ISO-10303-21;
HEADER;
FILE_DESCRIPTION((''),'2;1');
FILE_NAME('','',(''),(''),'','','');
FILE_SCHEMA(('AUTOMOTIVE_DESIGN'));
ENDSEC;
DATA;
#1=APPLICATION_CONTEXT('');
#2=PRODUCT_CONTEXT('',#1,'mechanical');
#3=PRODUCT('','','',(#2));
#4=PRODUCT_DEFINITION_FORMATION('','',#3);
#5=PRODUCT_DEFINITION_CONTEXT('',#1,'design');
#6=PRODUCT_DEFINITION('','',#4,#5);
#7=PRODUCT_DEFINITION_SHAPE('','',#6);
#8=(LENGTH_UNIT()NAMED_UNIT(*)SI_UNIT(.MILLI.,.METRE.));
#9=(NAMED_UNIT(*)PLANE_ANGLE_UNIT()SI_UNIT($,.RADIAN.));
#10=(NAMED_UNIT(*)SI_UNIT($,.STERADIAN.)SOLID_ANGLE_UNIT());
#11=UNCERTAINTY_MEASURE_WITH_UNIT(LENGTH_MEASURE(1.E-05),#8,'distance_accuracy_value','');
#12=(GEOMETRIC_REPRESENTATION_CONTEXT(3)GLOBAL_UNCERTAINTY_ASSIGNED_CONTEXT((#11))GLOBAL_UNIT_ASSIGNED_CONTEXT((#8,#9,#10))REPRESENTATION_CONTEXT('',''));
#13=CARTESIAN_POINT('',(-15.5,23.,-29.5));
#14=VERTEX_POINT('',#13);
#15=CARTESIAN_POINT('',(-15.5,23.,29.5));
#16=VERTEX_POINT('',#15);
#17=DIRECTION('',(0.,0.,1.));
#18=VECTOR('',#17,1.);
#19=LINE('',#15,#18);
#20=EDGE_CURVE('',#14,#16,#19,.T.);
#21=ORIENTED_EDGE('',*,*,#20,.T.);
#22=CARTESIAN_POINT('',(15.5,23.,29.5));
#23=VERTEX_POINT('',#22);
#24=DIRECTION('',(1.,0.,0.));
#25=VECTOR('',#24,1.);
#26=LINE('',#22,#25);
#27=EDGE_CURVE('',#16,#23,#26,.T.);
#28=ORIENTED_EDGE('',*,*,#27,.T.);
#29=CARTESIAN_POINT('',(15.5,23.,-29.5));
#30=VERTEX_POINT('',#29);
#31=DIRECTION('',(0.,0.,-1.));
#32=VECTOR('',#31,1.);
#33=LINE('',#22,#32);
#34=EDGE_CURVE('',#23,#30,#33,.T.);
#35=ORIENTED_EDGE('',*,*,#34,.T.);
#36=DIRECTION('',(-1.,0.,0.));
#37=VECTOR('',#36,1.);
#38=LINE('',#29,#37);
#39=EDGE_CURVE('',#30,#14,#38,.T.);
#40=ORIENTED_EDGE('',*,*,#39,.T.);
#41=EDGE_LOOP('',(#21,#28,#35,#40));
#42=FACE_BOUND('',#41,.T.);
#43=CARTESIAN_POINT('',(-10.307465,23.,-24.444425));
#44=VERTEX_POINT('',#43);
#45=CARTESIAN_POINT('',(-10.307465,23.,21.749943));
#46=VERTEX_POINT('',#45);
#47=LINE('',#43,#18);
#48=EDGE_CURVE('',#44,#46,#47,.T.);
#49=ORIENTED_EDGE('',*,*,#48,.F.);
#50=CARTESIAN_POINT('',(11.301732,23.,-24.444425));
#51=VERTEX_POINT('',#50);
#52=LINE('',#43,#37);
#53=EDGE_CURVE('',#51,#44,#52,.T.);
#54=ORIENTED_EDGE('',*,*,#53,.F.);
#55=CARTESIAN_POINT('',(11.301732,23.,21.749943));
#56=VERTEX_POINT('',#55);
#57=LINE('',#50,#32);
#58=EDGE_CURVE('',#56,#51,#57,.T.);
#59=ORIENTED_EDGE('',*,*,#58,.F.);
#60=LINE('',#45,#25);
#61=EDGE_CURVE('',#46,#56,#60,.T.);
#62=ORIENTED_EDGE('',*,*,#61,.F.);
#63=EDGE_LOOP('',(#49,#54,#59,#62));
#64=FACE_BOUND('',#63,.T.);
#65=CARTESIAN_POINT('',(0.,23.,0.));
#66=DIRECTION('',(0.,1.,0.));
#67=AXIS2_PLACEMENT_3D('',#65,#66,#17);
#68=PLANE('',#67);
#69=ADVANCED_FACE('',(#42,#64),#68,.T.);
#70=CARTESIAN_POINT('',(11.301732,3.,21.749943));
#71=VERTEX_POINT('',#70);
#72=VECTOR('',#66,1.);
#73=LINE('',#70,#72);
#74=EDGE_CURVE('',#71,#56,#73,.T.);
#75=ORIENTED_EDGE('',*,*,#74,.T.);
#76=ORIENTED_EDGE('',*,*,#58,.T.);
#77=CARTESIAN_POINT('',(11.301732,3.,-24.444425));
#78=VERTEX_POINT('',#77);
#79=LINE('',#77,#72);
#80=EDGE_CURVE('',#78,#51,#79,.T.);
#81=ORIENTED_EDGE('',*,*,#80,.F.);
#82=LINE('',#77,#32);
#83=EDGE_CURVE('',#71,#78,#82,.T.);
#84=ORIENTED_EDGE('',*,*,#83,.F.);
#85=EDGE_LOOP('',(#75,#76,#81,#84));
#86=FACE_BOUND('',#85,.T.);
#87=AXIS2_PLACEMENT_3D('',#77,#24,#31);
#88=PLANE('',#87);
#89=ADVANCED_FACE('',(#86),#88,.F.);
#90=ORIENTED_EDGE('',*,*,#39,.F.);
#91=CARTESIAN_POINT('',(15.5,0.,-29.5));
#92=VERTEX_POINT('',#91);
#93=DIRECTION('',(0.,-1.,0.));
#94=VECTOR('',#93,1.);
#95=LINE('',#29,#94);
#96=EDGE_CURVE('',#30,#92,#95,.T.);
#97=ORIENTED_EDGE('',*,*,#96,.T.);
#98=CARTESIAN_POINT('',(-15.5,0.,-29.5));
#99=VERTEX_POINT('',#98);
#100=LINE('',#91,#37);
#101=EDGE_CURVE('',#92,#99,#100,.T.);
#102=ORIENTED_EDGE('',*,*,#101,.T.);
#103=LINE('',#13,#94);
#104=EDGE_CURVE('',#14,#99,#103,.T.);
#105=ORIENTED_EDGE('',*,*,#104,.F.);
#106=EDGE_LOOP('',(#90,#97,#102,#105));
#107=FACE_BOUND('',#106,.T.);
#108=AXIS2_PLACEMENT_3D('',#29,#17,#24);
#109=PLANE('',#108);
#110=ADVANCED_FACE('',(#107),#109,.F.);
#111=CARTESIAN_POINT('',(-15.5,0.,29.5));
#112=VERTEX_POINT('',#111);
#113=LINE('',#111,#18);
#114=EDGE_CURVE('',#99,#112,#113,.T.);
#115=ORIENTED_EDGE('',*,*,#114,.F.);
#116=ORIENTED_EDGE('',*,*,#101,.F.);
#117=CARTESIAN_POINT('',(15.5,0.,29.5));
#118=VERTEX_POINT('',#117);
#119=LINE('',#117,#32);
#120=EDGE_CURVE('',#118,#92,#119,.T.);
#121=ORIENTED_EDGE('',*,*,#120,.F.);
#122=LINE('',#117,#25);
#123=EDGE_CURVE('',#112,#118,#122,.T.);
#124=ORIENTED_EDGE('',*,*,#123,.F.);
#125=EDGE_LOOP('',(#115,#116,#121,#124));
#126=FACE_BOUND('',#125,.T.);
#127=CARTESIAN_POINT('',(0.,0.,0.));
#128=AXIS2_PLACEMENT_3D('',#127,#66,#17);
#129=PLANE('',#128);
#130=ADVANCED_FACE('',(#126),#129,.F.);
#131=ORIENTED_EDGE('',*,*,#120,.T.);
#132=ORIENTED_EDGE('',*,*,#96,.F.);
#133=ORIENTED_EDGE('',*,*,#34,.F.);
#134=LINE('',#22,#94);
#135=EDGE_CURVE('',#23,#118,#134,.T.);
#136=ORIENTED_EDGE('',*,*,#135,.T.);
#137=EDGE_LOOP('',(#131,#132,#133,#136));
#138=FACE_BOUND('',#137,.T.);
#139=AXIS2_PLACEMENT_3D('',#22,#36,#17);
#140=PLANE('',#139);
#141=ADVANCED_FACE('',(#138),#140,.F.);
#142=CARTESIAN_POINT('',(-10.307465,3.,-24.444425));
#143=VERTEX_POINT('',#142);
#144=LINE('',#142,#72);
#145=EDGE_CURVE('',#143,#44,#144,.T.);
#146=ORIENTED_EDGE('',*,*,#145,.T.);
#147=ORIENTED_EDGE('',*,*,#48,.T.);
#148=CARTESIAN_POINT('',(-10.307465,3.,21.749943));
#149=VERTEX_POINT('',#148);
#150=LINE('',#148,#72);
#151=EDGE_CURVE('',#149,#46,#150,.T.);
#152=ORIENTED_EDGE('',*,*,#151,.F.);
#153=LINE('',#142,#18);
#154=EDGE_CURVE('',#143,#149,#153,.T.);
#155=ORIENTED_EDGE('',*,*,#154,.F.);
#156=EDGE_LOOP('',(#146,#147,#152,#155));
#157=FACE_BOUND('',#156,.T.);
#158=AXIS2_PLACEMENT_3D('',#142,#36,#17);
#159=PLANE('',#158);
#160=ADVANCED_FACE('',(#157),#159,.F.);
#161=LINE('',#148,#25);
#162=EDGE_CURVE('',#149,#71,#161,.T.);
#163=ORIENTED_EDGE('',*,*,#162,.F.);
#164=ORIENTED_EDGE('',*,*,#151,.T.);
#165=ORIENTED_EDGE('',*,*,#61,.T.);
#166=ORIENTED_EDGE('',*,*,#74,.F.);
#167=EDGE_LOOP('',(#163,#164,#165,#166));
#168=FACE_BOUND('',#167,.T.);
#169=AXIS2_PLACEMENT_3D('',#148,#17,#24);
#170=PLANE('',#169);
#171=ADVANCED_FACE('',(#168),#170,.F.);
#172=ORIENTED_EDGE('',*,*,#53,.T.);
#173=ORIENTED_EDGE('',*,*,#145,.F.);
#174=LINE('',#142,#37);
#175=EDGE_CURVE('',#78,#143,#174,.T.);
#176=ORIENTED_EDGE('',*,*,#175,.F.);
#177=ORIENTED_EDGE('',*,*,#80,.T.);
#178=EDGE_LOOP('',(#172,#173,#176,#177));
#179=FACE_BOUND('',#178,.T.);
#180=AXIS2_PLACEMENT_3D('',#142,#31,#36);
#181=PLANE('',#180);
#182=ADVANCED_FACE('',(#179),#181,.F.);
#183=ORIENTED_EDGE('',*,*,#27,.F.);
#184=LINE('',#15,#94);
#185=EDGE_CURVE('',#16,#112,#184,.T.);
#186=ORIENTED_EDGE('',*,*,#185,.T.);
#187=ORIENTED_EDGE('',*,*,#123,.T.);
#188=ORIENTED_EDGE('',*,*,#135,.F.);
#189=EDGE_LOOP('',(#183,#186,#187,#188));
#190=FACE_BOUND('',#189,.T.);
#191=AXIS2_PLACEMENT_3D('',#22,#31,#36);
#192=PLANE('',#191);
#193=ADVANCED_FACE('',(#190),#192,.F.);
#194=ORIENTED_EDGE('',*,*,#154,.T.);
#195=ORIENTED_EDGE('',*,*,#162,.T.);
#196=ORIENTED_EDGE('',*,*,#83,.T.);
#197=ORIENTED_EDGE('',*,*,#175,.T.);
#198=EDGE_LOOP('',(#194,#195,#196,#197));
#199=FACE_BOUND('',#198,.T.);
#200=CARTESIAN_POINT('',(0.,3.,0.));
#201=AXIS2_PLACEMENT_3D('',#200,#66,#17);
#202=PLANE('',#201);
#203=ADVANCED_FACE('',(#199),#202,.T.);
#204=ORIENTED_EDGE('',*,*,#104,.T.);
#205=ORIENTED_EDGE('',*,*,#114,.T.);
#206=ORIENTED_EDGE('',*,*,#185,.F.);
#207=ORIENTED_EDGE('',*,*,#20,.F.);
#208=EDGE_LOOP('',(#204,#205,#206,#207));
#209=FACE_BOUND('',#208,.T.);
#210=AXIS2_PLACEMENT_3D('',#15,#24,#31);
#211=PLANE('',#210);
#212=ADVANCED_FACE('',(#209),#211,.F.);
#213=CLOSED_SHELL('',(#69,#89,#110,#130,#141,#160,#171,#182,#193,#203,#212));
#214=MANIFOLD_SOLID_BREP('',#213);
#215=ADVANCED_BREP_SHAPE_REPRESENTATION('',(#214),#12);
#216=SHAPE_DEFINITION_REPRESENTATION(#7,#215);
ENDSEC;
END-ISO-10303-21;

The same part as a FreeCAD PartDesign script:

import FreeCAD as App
import Part
import Sketcher

V = App.Vector


def add_polygon(sketch, points):
    """Adds a closed chain of lines whose ends are joined by coincident constraints."""
    first, n = sketch.GeometryCount, len(points)
    for a, b in zip(points, points[1:] + points[:1]):
        sketch.addGeometry(Part.LineSegment(App.Vector(*a, 0), App.Vector(*b, 0)), False)
    for i in range(n):
        sketch.addConstraint(Sketcher.Constraint("Coincident", first + i, 2, first + (i + 1) % n, 1))

doc = App.newDocument("Part")
body = doc.addObject("PartDesign::Body", "Body")

sketch1 = body.newObject("Sketcher::SketchObject", "Sketch")
sketch1.AttachmentSupport = (doc.getObject("XZ_Plane"), [""])
sketch1.MapMode = "FlatFace"
add_polygon(sketch1, [(-15.5, -29.5), (-15.5, 29.5), (15.5, 29.5), (15.5, -29.5)])
sketch1.addConstraint([
    Sketcher.Constraint("Vertical", 0),
    Sketcher.Constraint("Horizontal", 1),
    Sketcher.Constraint("Vertical", 2),
    Sketcher.Constraint("Horizontal", 3),
    Sketcher.Constraint("Symmetric", 0, 2, 2, 2, -1, 1),
    Sketcher.Constraint("DistanceX", 1, 1, 1, 2, 31.0),
    Sketcher.Constraint("DistanceY", 0, 1, 0, 2, 59.0),
])
pad1 = body.newObject("PartDesign::Pad", "Pad")
pad1.Profile = sketch1
pad1.Length = 23
pad1.Reversed = True

sketch2 = body.newObject("Sketcher::SketchObject", "Sketch001")
sketch2.AttachmentSupport = (doc.getObject("XZ_Plane"), [""])
sketch2.MapMode = "FlatFace"
sketch2.AttachmentOffset = App.Placement(V(0, 0, -23), App.Rotation())
add_polygon(sketch2, [(-10.307465, -24.444425), (-10.307465, 21.749943), (11.301732, 21.749943), (11.301732, -24.444425)])
sketch2.addConstraint([
    Sketcher.Constraint("Vertical", 0),
    Sketcher.Constraint("Horizontal", 1),
    Sketcher.Constraint("Vertical", 2),
    Sketcher.Constraint("Horizontal", 3),
    Sketcher.Constraint("DistanceY", 0, 1, 0, 2, 46.194369),
    Sketcher.Constraint("DistanceX", 1, 1, 1, 2, 21.609197),
    Sketcher.Constraint("DistanceX", -1, 1, 1, 2, 11.301732),
    Sketcher.Constraint("DistanceY", -1, 1, 0, 2, 21.749943),
])
pocket1 = body.newObject("PartDesign::Pocket", "Pocket")
pocket1.Profile = sketch2
pocket1.Length = 20
pocket1.Reversed = True

doc.recompute()
